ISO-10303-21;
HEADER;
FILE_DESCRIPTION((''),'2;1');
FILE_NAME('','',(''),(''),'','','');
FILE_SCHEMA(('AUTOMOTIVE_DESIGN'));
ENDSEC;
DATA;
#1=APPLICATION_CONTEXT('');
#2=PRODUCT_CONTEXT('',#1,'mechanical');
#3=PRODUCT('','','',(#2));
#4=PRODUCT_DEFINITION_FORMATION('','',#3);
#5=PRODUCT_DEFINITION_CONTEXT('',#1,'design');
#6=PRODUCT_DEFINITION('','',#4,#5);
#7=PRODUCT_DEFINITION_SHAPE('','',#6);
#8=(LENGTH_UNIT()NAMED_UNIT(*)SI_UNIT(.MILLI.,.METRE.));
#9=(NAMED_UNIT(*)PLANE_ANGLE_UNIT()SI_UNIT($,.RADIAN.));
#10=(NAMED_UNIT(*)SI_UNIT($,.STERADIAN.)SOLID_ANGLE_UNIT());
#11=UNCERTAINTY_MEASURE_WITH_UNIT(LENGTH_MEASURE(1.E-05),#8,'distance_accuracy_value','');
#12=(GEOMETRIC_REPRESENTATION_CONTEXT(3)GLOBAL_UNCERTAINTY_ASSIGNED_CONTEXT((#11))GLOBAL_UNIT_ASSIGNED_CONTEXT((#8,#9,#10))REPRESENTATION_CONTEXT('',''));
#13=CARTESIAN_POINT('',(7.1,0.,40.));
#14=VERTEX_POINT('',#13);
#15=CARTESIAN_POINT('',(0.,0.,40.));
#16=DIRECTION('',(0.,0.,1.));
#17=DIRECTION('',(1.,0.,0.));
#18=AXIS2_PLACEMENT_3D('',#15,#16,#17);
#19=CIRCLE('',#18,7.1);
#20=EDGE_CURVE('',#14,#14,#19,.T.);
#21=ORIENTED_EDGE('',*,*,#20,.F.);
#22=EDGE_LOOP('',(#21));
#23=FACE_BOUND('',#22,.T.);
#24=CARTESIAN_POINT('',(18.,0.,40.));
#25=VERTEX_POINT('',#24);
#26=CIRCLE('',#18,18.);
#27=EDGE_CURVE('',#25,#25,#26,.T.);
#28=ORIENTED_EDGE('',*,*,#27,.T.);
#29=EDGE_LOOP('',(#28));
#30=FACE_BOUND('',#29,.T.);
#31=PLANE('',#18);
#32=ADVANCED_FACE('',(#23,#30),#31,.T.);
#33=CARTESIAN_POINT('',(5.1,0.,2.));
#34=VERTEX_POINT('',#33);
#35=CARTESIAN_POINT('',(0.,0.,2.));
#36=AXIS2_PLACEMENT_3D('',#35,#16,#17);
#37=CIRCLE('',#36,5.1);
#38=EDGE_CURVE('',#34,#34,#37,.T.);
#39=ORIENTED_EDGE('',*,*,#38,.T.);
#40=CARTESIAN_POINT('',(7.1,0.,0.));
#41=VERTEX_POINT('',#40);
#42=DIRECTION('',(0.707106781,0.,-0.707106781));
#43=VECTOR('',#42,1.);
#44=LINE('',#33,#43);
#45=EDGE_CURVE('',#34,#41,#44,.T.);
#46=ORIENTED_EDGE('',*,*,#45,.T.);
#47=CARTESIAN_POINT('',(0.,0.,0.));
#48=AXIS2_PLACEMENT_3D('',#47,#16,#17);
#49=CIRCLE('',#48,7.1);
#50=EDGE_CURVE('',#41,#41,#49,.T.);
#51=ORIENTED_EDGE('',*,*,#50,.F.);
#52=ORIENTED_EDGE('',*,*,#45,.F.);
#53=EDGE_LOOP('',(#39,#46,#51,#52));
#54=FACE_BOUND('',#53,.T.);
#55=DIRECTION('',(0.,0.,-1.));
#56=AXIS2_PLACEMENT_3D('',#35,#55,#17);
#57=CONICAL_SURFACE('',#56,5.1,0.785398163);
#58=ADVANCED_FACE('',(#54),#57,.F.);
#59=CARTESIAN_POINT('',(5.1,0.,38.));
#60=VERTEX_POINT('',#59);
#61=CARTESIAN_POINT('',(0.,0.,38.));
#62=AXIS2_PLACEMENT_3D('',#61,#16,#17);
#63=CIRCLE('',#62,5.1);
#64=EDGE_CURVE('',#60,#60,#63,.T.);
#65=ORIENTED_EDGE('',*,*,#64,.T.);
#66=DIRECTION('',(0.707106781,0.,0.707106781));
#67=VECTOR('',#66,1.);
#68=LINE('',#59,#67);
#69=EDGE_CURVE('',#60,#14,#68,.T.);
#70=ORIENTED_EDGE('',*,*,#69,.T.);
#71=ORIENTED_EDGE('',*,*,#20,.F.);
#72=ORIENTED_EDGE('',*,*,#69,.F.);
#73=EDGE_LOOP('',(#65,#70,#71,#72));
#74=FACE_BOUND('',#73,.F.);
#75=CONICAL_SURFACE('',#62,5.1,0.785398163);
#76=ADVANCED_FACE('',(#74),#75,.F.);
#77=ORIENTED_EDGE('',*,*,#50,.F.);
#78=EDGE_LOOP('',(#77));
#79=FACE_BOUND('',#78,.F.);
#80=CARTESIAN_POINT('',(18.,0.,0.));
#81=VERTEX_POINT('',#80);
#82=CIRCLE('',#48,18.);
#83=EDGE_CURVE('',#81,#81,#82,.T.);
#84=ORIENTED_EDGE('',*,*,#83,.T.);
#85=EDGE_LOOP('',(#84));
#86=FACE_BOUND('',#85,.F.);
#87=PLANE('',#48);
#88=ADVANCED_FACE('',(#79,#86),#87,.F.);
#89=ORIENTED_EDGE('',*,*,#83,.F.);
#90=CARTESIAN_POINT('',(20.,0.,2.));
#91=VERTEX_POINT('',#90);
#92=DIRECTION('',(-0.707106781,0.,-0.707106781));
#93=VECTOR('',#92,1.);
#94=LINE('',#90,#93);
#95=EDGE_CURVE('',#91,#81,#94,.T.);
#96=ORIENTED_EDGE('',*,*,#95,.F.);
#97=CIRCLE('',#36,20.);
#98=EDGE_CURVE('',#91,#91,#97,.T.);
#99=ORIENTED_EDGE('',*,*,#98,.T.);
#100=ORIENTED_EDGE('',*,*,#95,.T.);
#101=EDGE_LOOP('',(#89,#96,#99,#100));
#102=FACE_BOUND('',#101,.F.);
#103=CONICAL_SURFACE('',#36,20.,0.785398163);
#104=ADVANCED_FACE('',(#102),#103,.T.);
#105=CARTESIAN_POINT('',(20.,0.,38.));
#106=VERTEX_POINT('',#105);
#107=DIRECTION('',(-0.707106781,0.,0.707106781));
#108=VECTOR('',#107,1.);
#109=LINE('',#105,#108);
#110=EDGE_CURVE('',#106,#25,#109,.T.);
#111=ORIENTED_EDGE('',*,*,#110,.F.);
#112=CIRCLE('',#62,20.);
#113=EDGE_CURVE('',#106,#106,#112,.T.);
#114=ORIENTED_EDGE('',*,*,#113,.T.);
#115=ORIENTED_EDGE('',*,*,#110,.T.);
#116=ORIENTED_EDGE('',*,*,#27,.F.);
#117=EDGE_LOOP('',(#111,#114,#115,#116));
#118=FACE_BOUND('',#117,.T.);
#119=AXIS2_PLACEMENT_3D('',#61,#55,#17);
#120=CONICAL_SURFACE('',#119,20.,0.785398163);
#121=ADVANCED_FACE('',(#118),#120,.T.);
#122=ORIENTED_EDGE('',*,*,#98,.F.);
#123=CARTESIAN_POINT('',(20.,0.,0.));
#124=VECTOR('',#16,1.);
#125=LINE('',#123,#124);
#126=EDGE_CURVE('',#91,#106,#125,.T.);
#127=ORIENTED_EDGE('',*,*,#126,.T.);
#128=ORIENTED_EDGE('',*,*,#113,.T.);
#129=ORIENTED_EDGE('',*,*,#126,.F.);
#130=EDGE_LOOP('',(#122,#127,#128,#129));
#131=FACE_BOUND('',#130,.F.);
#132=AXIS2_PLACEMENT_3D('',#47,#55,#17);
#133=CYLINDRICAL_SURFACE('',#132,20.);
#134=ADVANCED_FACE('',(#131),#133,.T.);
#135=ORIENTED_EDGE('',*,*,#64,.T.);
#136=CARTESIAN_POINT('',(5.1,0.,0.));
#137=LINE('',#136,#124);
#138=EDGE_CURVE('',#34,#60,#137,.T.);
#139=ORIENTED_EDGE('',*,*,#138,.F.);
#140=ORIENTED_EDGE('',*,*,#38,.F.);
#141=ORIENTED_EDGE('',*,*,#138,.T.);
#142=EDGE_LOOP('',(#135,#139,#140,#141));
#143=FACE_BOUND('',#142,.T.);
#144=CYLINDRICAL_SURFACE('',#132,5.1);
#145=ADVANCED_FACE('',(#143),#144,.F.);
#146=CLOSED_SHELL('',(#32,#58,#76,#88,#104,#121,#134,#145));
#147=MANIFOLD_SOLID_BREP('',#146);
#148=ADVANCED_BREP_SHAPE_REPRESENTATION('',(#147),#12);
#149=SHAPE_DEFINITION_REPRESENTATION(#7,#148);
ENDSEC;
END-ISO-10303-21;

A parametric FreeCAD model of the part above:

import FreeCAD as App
import Part
import Sketcher


def edges_at(feature, points):
    """Names of the edges that pass closest to the given points."""
    edges = feature.Shape.Edges
    near = lambda p: min(range(len(edges)), key=lambda i: edges[i].distToShape(Part.Vertex(*p))[0])
    return sorted({f"Edge{near(p) + 1}" for p in points})

doc = App.newDocument("Part")
body = doc.addObject("PartDesign::Body", "Body")

# Sketch on XY plane
sketch1 = body.newObject("Sketcher::SketchObject", "Sketch")
sketch1.AttachmentSupport = (doc.getObject("XY_Plane"), [""])
sketch1.MapMode = "FlatFace"
sketch1.addGeometry([
    Part.Circle(App.Vector(0, 0, 0), App.Vector(0, 0, 1), 20),
    Part.Circle(App.Vector(0, 0, 0), App.Vector(0, 0, 1), 5),
], False)
sketch1.addConstraint([
    Sketcher.Constraint("Coincident", 0, 3, -1, 1),
    Sketcher.Constraint("Coincident", 1, 3, -1, 1),
    Sketcher.Constraint("Diameter", 0, 40.0),
    Sketcher.Constraint("Diameter", 1, 10.2),
])
pad1 = body.newObject("PartDesign::Pad", "Pad")
pad1.Profile = sketch1
pad1.Length = 40
doc.recompute()

chamfer = body.newObject("PartDesign::Chamfer", "Chamfer")
chamfer.Base = (pad1, edges_at(pad1, [
    (-20, 0, 0),
    (-20, 0, 40),
    (-5.1, 0, 0),
    (-5.1, 0, 40),
]))
chamfer.Size = 2

doc.recompute()
